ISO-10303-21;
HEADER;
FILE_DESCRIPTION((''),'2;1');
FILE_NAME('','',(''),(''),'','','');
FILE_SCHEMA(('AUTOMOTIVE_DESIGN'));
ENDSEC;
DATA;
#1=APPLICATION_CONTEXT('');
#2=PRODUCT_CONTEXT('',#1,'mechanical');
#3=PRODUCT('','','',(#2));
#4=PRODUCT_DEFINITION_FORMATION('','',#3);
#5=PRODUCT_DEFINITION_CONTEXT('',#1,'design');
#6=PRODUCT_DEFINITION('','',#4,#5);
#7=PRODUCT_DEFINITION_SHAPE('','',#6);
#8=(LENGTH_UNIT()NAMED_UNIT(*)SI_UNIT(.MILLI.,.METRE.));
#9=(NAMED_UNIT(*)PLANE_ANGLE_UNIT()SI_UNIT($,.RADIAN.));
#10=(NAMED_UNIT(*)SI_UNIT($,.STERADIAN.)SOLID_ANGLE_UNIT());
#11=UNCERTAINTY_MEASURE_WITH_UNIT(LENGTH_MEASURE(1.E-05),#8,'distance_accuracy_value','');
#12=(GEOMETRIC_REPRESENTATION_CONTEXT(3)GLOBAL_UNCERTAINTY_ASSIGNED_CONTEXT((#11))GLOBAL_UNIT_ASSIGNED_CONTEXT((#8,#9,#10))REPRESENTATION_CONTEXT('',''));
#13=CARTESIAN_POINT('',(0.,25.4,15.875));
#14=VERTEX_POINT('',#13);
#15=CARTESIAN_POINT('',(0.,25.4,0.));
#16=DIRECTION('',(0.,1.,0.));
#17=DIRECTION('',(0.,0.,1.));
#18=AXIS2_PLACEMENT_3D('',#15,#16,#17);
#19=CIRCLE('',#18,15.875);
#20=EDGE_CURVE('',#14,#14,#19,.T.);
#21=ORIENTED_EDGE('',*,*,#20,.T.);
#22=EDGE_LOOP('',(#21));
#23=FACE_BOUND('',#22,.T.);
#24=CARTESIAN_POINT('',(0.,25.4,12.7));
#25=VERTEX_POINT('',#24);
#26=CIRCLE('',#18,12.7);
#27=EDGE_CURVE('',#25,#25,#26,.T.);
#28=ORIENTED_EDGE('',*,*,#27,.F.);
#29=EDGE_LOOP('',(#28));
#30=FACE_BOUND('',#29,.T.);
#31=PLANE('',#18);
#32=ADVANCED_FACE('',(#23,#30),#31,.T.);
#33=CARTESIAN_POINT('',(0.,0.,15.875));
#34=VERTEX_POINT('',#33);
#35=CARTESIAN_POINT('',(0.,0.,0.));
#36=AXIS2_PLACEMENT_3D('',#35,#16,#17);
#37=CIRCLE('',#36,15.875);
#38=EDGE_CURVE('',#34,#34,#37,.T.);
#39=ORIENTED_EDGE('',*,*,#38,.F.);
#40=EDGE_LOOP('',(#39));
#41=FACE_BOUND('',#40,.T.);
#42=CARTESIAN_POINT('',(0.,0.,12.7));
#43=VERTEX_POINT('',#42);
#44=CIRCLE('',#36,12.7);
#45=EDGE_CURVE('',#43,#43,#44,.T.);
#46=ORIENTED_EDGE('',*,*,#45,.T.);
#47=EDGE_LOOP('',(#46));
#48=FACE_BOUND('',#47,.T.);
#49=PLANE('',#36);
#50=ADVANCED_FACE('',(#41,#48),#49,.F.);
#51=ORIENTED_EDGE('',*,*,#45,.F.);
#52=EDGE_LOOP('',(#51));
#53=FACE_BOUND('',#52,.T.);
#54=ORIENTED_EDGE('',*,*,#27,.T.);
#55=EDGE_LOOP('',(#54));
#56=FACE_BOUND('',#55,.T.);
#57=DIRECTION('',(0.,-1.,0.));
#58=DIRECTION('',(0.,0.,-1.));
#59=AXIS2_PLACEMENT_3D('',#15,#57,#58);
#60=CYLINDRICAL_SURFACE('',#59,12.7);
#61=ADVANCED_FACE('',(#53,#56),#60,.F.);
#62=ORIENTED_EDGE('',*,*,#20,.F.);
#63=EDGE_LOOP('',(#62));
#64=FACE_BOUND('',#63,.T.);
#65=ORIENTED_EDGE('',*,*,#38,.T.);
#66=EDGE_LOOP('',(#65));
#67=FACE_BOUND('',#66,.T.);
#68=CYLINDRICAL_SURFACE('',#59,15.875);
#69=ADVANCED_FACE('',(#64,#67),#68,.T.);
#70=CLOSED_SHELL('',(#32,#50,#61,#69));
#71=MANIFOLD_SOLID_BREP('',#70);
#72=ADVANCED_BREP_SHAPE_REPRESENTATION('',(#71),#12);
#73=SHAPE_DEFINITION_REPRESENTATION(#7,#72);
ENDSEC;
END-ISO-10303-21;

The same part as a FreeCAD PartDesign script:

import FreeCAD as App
import Part
import Sketcher
from FreeCAD import Vector
Q = App.Units.Quantity

doc = App.newDocument("Part")
body = doc.addObject("PartDesign::Body", "Body")

# Sketch on XZ plane
sketch1 = body.newObject("Sketcher::SketchObject", "Sketch")
sketch1.AttachmentSupport = (doc.getObject("XZ_Plane"), [""])
sketch1.MapMode = "FlatFace"
sketch1.addGeometry(Part.Circle(Vector(0, 0, 0), Vector(0, 0, 1), 15.875), False)
sketch1.addGeometry(Part.Circle(Vector(0, 0, 0), Vector(0, 0, 1), 12.7), False)
sketch1.addConstraint(Sketcher.Constraint("Coincident", 0, 3, -1, 1))
sketch1.addConstraint(Sketcher.Constraint("Coincident", 1, 3, -1, 1))
sketch1.addConstraint(Sketcher.Constraint("Diameter", 1, Q("1 in")))
sketch1.addConstraint(Sketcher.Constraint("Diameter", 0, Q("1.25 in")))
pad1 = body.newObject("PartDesign::Pad", "Pad")
pad1.Profile = sketch1
pad1.Length = Q("1 in")
pad1.Reversed = True

doc.recompute()
